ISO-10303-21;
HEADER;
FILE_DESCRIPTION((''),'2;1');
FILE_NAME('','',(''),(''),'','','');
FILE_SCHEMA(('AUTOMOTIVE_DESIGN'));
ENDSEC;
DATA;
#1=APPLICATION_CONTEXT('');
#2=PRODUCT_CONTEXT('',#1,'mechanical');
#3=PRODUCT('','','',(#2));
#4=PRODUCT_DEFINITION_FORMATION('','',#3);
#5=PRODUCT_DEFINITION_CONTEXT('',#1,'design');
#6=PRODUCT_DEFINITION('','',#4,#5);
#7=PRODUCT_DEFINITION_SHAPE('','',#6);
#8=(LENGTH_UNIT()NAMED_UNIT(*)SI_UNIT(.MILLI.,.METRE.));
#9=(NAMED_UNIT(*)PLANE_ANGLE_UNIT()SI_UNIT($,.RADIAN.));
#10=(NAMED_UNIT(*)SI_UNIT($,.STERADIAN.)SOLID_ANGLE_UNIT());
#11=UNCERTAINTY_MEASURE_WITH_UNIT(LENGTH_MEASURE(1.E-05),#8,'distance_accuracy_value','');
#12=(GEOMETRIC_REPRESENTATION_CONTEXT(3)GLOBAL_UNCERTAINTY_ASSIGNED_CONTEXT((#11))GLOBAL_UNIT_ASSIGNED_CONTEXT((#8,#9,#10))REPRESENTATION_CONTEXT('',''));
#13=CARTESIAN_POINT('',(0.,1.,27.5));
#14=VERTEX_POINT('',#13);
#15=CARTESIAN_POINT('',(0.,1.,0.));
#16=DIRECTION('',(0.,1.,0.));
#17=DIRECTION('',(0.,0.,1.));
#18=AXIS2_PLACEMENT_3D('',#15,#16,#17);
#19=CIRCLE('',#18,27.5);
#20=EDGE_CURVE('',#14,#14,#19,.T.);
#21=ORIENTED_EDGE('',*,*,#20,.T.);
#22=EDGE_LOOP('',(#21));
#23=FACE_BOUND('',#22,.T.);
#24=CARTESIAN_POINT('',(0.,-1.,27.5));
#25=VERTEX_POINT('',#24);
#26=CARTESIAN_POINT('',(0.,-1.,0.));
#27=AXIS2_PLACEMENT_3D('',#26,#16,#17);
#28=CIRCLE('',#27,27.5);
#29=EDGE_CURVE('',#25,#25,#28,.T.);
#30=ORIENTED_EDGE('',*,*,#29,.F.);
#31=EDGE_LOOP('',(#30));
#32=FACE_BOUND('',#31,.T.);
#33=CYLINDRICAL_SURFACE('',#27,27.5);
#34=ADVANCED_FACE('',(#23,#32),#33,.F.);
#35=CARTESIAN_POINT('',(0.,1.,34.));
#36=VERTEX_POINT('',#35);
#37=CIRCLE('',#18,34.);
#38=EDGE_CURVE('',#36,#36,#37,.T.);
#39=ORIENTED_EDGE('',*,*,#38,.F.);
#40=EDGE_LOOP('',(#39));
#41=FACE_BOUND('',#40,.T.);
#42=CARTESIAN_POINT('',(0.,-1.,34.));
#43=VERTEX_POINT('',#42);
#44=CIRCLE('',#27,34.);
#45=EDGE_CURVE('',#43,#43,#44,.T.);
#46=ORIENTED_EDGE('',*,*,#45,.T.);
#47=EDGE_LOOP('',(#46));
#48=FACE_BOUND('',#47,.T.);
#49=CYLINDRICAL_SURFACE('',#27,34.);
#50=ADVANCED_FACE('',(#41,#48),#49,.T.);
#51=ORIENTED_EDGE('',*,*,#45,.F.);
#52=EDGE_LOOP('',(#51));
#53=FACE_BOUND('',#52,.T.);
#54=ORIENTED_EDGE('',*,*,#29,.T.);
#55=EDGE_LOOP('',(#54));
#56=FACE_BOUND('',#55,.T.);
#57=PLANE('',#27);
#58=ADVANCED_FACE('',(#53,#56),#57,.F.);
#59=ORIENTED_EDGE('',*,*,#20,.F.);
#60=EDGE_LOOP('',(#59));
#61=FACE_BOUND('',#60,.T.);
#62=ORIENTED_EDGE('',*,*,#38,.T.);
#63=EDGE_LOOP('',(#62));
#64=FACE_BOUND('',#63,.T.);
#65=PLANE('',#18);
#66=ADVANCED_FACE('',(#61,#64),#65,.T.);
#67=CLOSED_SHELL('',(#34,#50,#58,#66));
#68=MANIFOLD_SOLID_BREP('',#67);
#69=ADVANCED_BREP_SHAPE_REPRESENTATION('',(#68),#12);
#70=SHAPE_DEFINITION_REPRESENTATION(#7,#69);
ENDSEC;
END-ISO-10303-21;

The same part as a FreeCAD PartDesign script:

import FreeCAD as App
import Part
import Sketcher

V = App.Vector
Q = App.Units.Quantity

doc = App.newDocument("Part")
body = doc.addObject("PartDesign::Body", "Body")

sketch1 = body.newObject("Sketcher::SketchObject", "Sketch")
sketch1.AttachmentSupport = (doc.getObject("XZ_Plane"), [""])
sketch1.MapMode = "FlatFace"
sketch1.addGeometry([
    Part.Circle(V(0, 0, 0), V(0, 0, 1), 34),
    Part.Circle(V(0, 0, 0), V(0, 0, 1), 28),
], False)
sketch1.addConstraint([
    Sketcher.Constraint("Coincident", 0, 3, -1, 1),
    Sketcher.Constraint("Coincident", 1, 3, -1, 1),
    Sketcher.Constraint("Diameter", 0, Q("68 mm")),
    Sketcher.Constraint("Diameter", 1, Q("55 mm")),
])
pad1 = body.newObject("PartDesign::Pad", "Pad")
pad1.Profile = sketch1
pad1.Type = "TwoLengths"
pad1.Length = 1
pad1.Length2 = 1
pad1.Reversed = True

doc.recompute()
